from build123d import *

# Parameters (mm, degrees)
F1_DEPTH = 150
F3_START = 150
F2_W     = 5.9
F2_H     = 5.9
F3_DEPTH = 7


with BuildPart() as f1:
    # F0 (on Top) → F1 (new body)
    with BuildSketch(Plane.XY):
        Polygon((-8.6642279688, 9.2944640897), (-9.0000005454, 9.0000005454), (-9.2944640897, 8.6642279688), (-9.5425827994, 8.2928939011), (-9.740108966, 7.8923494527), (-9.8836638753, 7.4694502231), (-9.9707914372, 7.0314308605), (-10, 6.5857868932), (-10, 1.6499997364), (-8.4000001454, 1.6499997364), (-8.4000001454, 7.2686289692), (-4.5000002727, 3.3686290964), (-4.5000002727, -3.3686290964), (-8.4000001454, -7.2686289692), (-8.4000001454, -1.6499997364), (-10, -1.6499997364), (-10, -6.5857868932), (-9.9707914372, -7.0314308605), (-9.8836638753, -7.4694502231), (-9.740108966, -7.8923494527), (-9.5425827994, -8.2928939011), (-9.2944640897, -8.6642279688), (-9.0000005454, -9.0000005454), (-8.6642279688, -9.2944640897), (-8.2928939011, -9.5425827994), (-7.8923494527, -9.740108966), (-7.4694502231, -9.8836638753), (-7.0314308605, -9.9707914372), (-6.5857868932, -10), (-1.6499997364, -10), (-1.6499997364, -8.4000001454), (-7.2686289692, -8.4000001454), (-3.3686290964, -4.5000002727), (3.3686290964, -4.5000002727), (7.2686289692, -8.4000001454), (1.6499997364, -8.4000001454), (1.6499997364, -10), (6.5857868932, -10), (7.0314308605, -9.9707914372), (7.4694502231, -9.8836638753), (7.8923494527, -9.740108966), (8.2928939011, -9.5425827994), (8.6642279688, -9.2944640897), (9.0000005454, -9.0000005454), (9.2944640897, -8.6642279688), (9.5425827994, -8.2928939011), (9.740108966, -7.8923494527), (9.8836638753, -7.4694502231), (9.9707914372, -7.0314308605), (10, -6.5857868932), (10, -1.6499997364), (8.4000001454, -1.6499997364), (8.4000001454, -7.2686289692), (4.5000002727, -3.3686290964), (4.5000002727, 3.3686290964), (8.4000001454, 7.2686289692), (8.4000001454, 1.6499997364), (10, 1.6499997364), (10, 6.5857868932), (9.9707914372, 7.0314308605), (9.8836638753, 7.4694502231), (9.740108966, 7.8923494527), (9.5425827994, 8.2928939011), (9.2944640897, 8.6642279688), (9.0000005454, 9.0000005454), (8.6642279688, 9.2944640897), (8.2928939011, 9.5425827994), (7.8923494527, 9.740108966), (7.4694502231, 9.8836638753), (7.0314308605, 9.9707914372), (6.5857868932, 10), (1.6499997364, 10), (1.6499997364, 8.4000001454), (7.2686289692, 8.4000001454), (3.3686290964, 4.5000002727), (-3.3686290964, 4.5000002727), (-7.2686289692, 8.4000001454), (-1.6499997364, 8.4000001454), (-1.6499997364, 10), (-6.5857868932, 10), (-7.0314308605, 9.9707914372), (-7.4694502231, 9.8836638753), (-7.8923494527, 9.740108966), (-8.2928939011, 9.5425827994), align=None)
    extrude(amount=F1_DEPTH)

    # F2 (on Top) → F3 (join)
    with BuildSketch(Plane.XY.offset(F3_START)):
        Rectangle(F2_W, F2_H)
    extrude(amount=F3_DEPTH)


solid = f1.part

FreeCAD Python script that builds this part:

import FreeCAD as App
import Part
import Sketcher
from FreeCAD import Vector
Q = App.Units.Quantity


def add_polygon(sketch, points):
    """Adds a closed chain of lines whose ends are joined by coincident constraints."""
    first, n = sketch.GeometryCount, len(points)
    for a, b in zip(points, points[1:] + points[:1]):
        sketch.addGeometry(Part.LineSegment(App.Vector(*a, 0), App.Vector(*b, 0)), False)
    for i in range(n):
        sketch.addConstraint(Sketcher.Constraint("Coincident", first + i, 2, first + (i + 1) % n, 1))

doc = App.newDocument("Part")
body = doc.addObject("PartDesign::Body", "Body")

# Sketch on XY plane
sketch1 = doc.addObject("Sketcher::SketchObject", "Sketch")
body.addObject(sketch1)
sketch1.AttachmentSupport = (doc.XY_Plane, [""])
sketch1.MapMode = "FlatFace"
add_polygon(sketch1, [(-8.664228, 9.294464), (-9.000001, 9.000001), (-9.294464, 8.664228), (-9.542583, 8.292894), (-9.740109, 7.892349), (-9.883664, 7.46945), (-9.970791, 7.031431), (-10, 6.585787), (-10, 1.65), (-8.4, 1.65), (-8.4, 7.268629), (-4.5, 3.368629), (-4.5, -3.368629), (-8.4, -7.268629), (-8.4, -1.65), (-10, -1.65), (-10, -6.585787), (-9.970791, -7.031431), (-9.883664, -7.46945), (-9.740109, -7.892349), (-9.542583, -8.292894), (-9.294464, -8.664228), (-9.000001, -9.000001), (-8.664228, -9.294464), (-8.292894, -9.542583), (-7.892349, -9.740109), (-7.46945, -9.883664), (-7.031431, -9.970791), (-6.585787, -10), (-1.65, -10), (-1.65, -8.4), (-7.268629, -8.4), (-3.368629, -4.5), (3.368629, -4.5), (7.268629, -8.4), (1.65, -8.4), (1.65, -10), (6.585787, -10), (7.031431, -9.970791), (7.46945, -9.883664), (7.892349, -9.740109), (8.292894, -9.542583), (8.664228, -9.294464), (9.000001, -9.000001), (9.294464, -8.664228), (9.542583, -8.292894), (9.740109, -7.892349), (9.883664, -7.46945), (9.970791, -7.031431), (10, -6.585787), (10, -1.65), (8.4, -1.65), (8.4, -7.268629), (4.5, -3.368629), (4.5, 3.368629), (8.4, 7.268629), (8.4, 1.65), (10, 1.65), (10, 6.585787), (9.970791, 7.031431), (9.883664, 7.46945), (9.740109, 7.892349), (9.542583, 8.292894), (9.294464, 8.664228), (9.000001, 9.000001), (8.664228, 9.294464), (8.292894, 9.542583), (7.892349, 9.740109), (7.46945, 9.883664), (7.031431, 9.970791), (6.585787, 10), (1.65, 10), (1.65, 8.4), (7.268629, 8.4), (3.368629, 4.5), (-3.368629, 4.5), (-7.268629, 8.4), (-1.65, 8.4), (-1.65, 10), (-6.585787, 10), (-7.031431, 9.970791), (-7.46945, 9.883664), (-7.892349, 9.740109), (-8.292894, 9.542583)])  # lines 0-83
sketch1.addConstraint(Sketcher.Constraint("Vertical", 7))
sketch1.addConstraint(Sketcher.Constraint("Horizontal", 8))
sketch1.addConstraint(Sketcher.Constraint("Vertical", 9))
sketch1.addConstraint(Sketcher.Constraint("Vertical", 11))
sketch1.addConstraint(Sketcher.Constraint("Vertical", 13))
sketch1.addConstraint(Sketcher.Constraint("Horizontal", 14))
sketch1.addConstraint(Sketcher.Constraint("Vertical", 15))
sketch1.addConstraint(Sketcher.Constraint("Horizontal", 28))
sketch1.addConstraint(Sketcher.Constraint("Vertical", 29))
sketch1.addConstraint(Sketcher.Constraint("Horizontal", 30))
sketch1.addConstraint(Sketcher.Constraint("Horizontal", 32))
sketch1.addConstraint(Sketcher.Constraint("Horizontal", 34))
sketch1.addConstraint(Sketcher.Constraint("Vertical", 35))
sketch1.addConstraint(Sketcher.Constraint("Horizontal", 36))
sketch1.addConstraint(Sketcher.Constraint("Vertical", 49))
sketch1.addConstraint(Sketcher.Constraint("Horizontal", 50))
sketch1.addConstraint(Sketcher.Constraint("Vertical", 51))
sketch1.addConstraint(Sketcher.Constraint("Vertical", 53))
sketch1.addConstraint(Sketcher.Constraint("Vertical", 55))
sketch1.addConstraint(Sketcher.Constraint("Horizontal", 56))
sketch1.addConstraint(Sketcher.Constraint("Vertical", 57))
sketch1.addConstraint(Sketcher.Constraint("Horizontal", 70))
sketch1.addConstraint(Sketcher.Constraint("Vertical", 71))
sketch1.addConstraint(Sketcher.Constraint("Horizontal", 72))
sketch1.addConstraint(Sketcher.Constraint("Horizontal", 74))
sketch1.addConstraint(Sketcher.Constraint("Horizontal", 76))
sketch1.addConstraint(Sketcher.Constraint("Vertical", 77))
sketch1.addConstraint(Sketcher.Constraint("Horizontal", 78))
sketch1.addConstraint(Sketcher.Constraint("DistanceX", 8, 1, 8, 2, Q("1.6 mm")))
sketch1.addConstraint(Sketcher.Constraint("DistanceX", 14, 2, 14, 1, Q("1.6 mm")))
sketch1.addConstraint(Sketcher.Constraint("DistanceX", 50, 2, 50, 1, Q("1.6 mm")))
sketch1.addConstraint(Sketcher.Constraint("DistanceX", 56, 1, 56, 2, Q("1.6 mm")))
sketch1.addConstraint(Sketcher.Constraint("DistanceY", 29, 1, 29, 2, Q("1.6 mm")))
sketch1.addConstraint(Sketcher.Constraint("DistanceY", 35, 2, 35, 1, Q("1.6 mm")))
sketch1.addConstraint(Sketcher.Constraint("DistanceY", 71, 2, 71, 1, Q("1.6 mm")))
sketch1.addConstraint(Sketcher.Constraint("DistanceY", 77, 1, 77, 2, Q("1.6 mm")))
sketch1.addConstraint(Sketcher.Constraint("DistanceX", 0, 2, -1, 1, Q("9.000001 mm")))
sketch1.addConstraint(Sketcher.Constraint("DistanceY", -1, 1, 0, 2, Q("9.000001 mm")))
sketch1.addConstraint(Sketcher.Constraint("DistanceX", 6, 2, -1, 1, Q("10 mm")))
sketch1.addConstraint(Sketcher.Constraint("DistanceX", 14, 2, -1, 1, Q("10 mm")))
sketch1.addConstraint(Sketcher.Constraint("DistanceX", 21, 2, -1, 1, Q("9.000001 mm")))
sketch1.addConstraint(Sketcher.Constraint("DistanceY", 21, 2, -1, 1, Q("9.000001 mm")))
sketch1.addConstraint(Sketcher.Constraint("DistanceY", 27, 2, -1, 1, Q("10 mm")))
sketch1.addConstraint(Sketcher.Constraint("DistanceY", 35, 2, -1, 1, Q("10 mm")))
sketch1.addConstraint(Sketcher.Constraint("DistanceX", -1, 1, 42, 2, Q("9.000001 mm")))
sketch1.addConstraint(Sketcher.Constraint("DistanceY", 42, 2, -1, 1, Q("9.000001 mm")))
sketch1.addConstraint(Sketcher.Constraint("DistanceX", -1, 1, 48, 2, Q("10 mm")))
sketch1.addConstraint(Sketcher.Constraint("DistanceX", -1, 1, 56, 2, Q("10 mm")))
sketch1.addConstraint(Sketcher.Constraint("DistanceX", -1, 1, 63, 2, Q("9.000001 mm")))
sketch1.addConstraint(Sketcher.Constraint("DistanceY", -1, 1, 63, 2, Q("9.000001 mm")))
sketch1.addConstraint(Sketcher.Constraint("DistanceY", -1, 1, 69, 2, Q("10 mm")))
sketch1.addConstraint(Sketcher.Constraint("DistanceY", -1, 1, 77, 2, Q("10 mm")))
sketch1.addConstraint(Sketcher.Constraint("DistanceX", 10, 2, -1, 1, Q("4.5 mm")))
sketch1.addConstraint(Sketcher.Constraint("DistanceY", 31, 2, -1, 1, Q("4.5 mm")))
sketch1.addConstraint(Sketcher.Constraint("DistanceX", -1, 1, 52, 2, Q("4.5 mm")))
sketch1.addConstraint(Sketcher.Constraint("DistanceY", -1, 1, 73, 2, Q("4.5 mm")))
sketch1.addConstraint(Sketcher.Constraint("DistanceY", -1, 1, 7, 2, Q("1.65 mm")))
sketch1.addConstraint(Sketcher.Constraint("DistanceY", 13, 2, -1, 1, Q("1.65 mm")))
sketch1.addConstraint(Sketcher.Constraint("DistanceX", 28, 2, -1, 1, Q("1.65 mm")))
sketch1.addConstraint(Sketcher.Constraint("DistanceX", -1, 1, 34, 2, Q("1.65 mm")))
sketch1.addConstraint(Sketcher.Constraint("DistanceY", 49, 2, -1, 1, Q("1.65 mm")))
sketch1.addConstraint(Sketcher.Constraint("DistanceY", -1, 1, 55, 2, Q("1.65 mm")))
sketch1.addConstraint(Sketcher.Constraint("DistanceX", -1, 1, 70, 2, Q("1.65 mm")))
sketch1.addConstraint(Sketcher.Constraint("DistanceX", 76, 2, -1, 1, Q("1.65 mm")))
sketch1.addConstraint(Sketcher.Constraint("Distance", 0, Q("0.4466 mm")))
sketch1.addConstraint(Sketcher.Constraint("Distance", 1, Q("0.4466 mm")))
sketch1.addConstraint(Sketcher.Constraint("Distance", 2, Q("0.4466 mm")))
sketch1.addConstraint(Sketcher.Constraint("Distance", 3, Q("0.446601 mm")))
sketch1.addConstraint(Sketcher.Constraint("Distance", 4, Q("0.4466 mm")))
sketch1.addConstraint(Sketcher.Constraint("Distance", 5, Q("0.446601 mm")))
sketch1.addConstraint(Sketcher.Constraint("Distance", 6, Q("0.4466 mm")))
sketch1.addConstraint(Sketcher.Constraint("Distance", 16, Q("0.4466 mm")))
sketch1.addConstraint(Sketcher.Constraint("Distance", 17, Q("0.446601 mm")))
sketch1.addConstraint(Sketcher.Constraint("Distance", 18, Q("0.4466 mm")))
sketch1.addConstraint(Sketcher.Constraint("Distance", 19, Q("0.446601 mm")))
sketch1.addConstraint(Sketcher.Constraint("Distance", 20, Q("0.4466 mm")))
sketch1.addConstraint(Sketcher.Constraint("Distance", 21, Q("0.4466 mm")))
sketch1.addConstraint(Sketcher.Constraint("Distance", 22, Q("0.4466 mm")))
sketch1.addConstraint(Sketcher.Constraint("Distance", 23, Q("0.4466 mm")))
sketch1.addConstraint(Sketcher.Constraint("Distance", 24, Q("0.446601 mm")))
sketch1.addConstraint(Sketcher.Constraint("Distance", 25, Q("0.4466 mm")))
sketch1.addConstraint(Sketcher.Constraint("Distance", 26, Q("0.446601 mm")))
sketch1.addConstraint(Sketcher.Constraint("Distance", 27, Q("0.4466 mm")))
sketch1.addConstraint(Sketcher.Constraint("Distance", 37, Q("0.4466 mm")))
sketch1.addConstraint(Sketcher.Constraint("Distance", 38, Q("0.446601 mm")))
sketch1.addConstraint(Sketcher.Constraint("Distance", 39, Q("0.4466 mm")))
sketch1.addConstraint(Sketcher.Constraint("Distance", 40, Q("0.446601 mm")))
sketch1.addConstraint(Sketcher.Constraint("Distance", 41, Q("0.4466 mm")))
sketch1.addConstraint(Sketcher.Constraint("Distance", 42, Q("0.4466 mm")))
sketch1.addConstraint(Sketcher.Constraint("Distance", 43, Q("0.4466 mm")))
sketch1.addConstraint(Sketcher.Constraint("Distance", 44, Q("0.4466 mm")))
sketch1.addConstraint(Sketcher.Constraint("Distance", 45, Q("0.446601 mm")))
sketch1.addConstraint(Sketcher.Constraint("Distance", 46, Q("0.4466 mm")))
sketch1.addConstraint(Sketcher.Constraint("Distance", 47, Q("0.446601 mm")))
sketch1.addConstraint(Sketcher.Constraint("Distance", 48, Q("0.4466 mm")))
sketch1.addConstraint(Sketcher.Constraint("Distance", 58, Q("0.4466 mm")))
sketch1.addConstraint(Sketcher.Constraint("Distance", 59, Q("0.446601 mm")))
sketch1.addConstraint(Sketcher.Constraint("Distance", 60, Q("0.4466 mm")))
sketch1.addConstraint(Sketcher.Constraint("Distance", 61, Q("0.446601 mm")))
sketch1.addConstraint(Sketcher.Constraint("Distance", 62, Q("0.4466 mm")))
sketch1.addConstraint(Sketcher.Constraint("Distance", 63, Q("0.4466 mm")))
sketch1.addConstraint(Sketcher.Constraint("Distance", 64, Q("0.4466 mm")))
sketch1.addConstraint(Sketcher.Constraint("Distance", 65, Q("0.4466 mm")))
sketch1.addConstraint(Sketcher.Constraint("Distance", 66, Q("0.446601 mm")))
sketch1.addConstraint(Sketcher.Constraint("Distance", 67, Q("0.4466 mm")))
sketch1.addConstraint(Sketcher.Constraint("Distance", 68, Q("0.446601 mm")))
sketch1.addConstraint(Sketcher.Constraint("Distance", 69, Q("0.4466 mm")))
sketch1.addConstraint(Sketcher.Constraint("Distance", 79, Q("0.4466 mm")))
sketch1.addConstraint(Sketcher.Constraint("Distance", 80, Q("0.446601 mm")))
sketch1.addConstraint(Sketcher.Constraint("Distance", 81, Q("0.4466 mm")))
sketch1.addConstraint(Sketcher.Constraint("Distance", 82, Q("0.446601 mm")))
sketch1.addConstraint(Sketcher.Constraint("Distance", 83, Q("0.4466 mm")))
sketch1.addConstraint(Sketcher.Constraint("DistanceX", 30, 2, 30, 1, Q("5.618629 mm")))
sketch1.addConstraint(Sketcher.Constraint("DistanceX", 32, 1, 32, 2, Q("6.737258 mm")))
sketch1.addConstraint(Sketcher.Constraint("DistanceX", 34, 2, 34, 1, Q("5.618629 mm")))
sketch1.addConstraint(Sketcher.Constraint("DistanceX", 72, 1, 72, 2, Q("5.618629 mm")))
sketch1.addConstraint(Sketcher.Constraint("DistanceX", 74, 2, 74, 1, Q("6.737258 mm")))
sketch1.addConstraint(Sketcher.Constraint("DistanceX", 76, 1, 76, 2, Q("5.618629 mm")))
sketch1.addConstraint(Sketcher.Constraint("DistanceY", 9, 1, 9, 2, Q("5.618629 mm")))
sketch1.addConstraint(Sketcher.Constraint("DistanceY", 11, 2, 11, 1, Q("6.737258 mm")))
sketch1.addConstraint(Sketcher.Constraint("DistanceY", 13, 1, 13, 2, Q("5.618629 mm")))
sketch1.addConstraint(Sketcher.Constraint("DistanceY", 51, 2, 51, 1, Q("5.618629 mm")))
sketch1.addConstraint(Sketcher.Constraint("DistanceY", 53, 1, 53, 2, Q("6.737258 mm")))
sketch1.addConstraint(Sketcher.Constraint("DistanceY", 55, 2, 55, 1, Q("5.618629 mm")))
sketch1.addConstraint(Sketcher.Constraint("DistanceX", 28, 1, 28, 2, Q("4.935787 mm")))
sketch1.addConstraint(Sketcher.Constraint("DistanceX", 36, 1, 36, 2, Q("4.935787 mm")))
sketch1.addConstraint(Sketcher.Constraint("DistanceX", 70, 2, 70, 1, Q("4.935787 mm")))
sketch1.addConstraint(Sketcher.Constraint("DistanceX", 78, 2, 78, 1, Q("4.935787 mm")))
sketch1.addConstraint(Sketcher.Constraint("DistanceY", 7, 2, 7, 1, Q("4.935787 mm")))
sketch1.addConstraint(Sketcher.Constraint("DistanceY", 15, 2, 15, 1, Q("4.935787 mm")))
sketch1.addConstraint(Sketcher.Constraint("DistanceY", 49, 1, 49, 2, Q("4.935787 mm")))
sketch1.addConstraint(Sketcher.Constraint("DistanceY", 57, 1, 57, 2, Q("4.935787 mm")))
sketch1.addConstraint(Sketcher.Constraint("DistanceX", 3, 2, -1, 1, Q("9.740109 mm")))
sketch1.addConstraint(Sketcher.Constraint("DistanceY", -1, 1, 3, 2, Q("7.892349 mm")))
sketch1.addConstraint(Sketcher.Constraint("DistanceY", -1, 1, 4, 2, Q("7.46945 mm")))
sketch1.addConstraint(Sketcher.Constraint("DistanceY", -1, 1, 10, 2, Q("3.368629 mm")))
sketch1.addConstraint(Sketcher.Constraint("DistanceX", 16, 2, -1, 1, Q("9.970791 mm")))
sketch1.addConstraint(Sketcher.Constraint("DistanceY", 17, 2, -1, 1, Q("7.46945 mm")))
sketch1.addConstraint(Sketcher.Constraint("DistanceX", 18, 2, -1, 1, Q("9.740109 mm")))
sketch1.addConstraint(Sketcher.Constraint("DistanceX", 24, 2, -1, 1, Q("7.892349 mm")))
sketch1.addConstraint(Sketcher.Constraint("DistanceY", 24, 2, -1, 1, Q("9.740109 mm")))
sketch1.addConstraint(Sketcher.Constraint("DistanceX", 25, 2, -1, 1, Q("7.46945 mm")))
sketch1.addConstraint(Sketcher.Constraint("DistanceX", 31, 2, -1, 1, Q("3.368629 mm")))
sketch1.addConstraint(Sketcher.Constraint("DistanceX", -1, 1, 37, 2, Q("7.031431 mm")))
sketch1.addConstraint(Sketcher.Constraint("DistanceX", -1, 1, 38, 2, Q("7.46945 mm")))
sketch1.addConstraint(Sketcher.Constraint("DistanceX", -1, 1, 39, 2, Q("7.892349 mm")))
sketch1.addConstraint(Sketcher.Constraint("DistanceX", -1, 1, 45, 2, Q("9.740109 mm")))
sketch1.addConstraint(Sketcher.Constraint("DistanceY", 45, 2, -1, 1, Q("7.892349 mm")))
sketch1.addConstraint(Sketcher.Constraint("DistanceY", 46, 2, -1, 1, Q("7.46945 mm")))
sketch1.addConstraint(Sketcher.Constraint("DistanceY", 52, 2, -1, 1, Q("3.368629 mm")))
sketch1.addConstraint(Sketcher.Constraint("DistanceX", -1, 1, 58, 2, Q("9.970791 mm")))
sketch1.addConstraint(Sketcher.Constraint("DistanceY", -1, 1, 59, 2, Q("7.46945 mm")))
sketch1.addConstraint(Sketcher.Constraint("DistanceX", -1, 1, 60, 2, Q("9.740109 mm")))
sketch1.addConstraint(Sketcher.Constraint("DistanceX", -1, 1, 66, 2, Q("7.892349 mm")))
sketch1.addConstraint(Sketcher.Constraint("DistanceY", -1, 1, 66, 2, Q("9.740109 mm")))
sketch1.addConstraint(Sketcher.Constraint("DistanceX", -1, 1, 67, 2, Q("7.46945 mm")))
sketch1.addConstraint(Sketcher.Constraint("DistanceX", -1, 1, 73, 2, Q("3.368629 mm")))
sketch1.addConstraint(Sketcher.Constraint("DistanceX", 79, 2, -1, 1, Q("7.031431 mm")))
sketch1.addConstraint(Sketcher.Constraint("DistanceX", 80, 2, -1, 1, Q("7.46945 mm")))
sketch1.addConstraint(Sketcher.Constraint("DistanceX", 81, 2, -1, 1, Q("7.892349 mm")))
sketch1.addConstraint(Sketcher.Constraint("DistanceX", 1, 2, -1, 1, Q("9.294464 mm")))
sketch1.addConstraint(Sketcher.Constraint("DistanceX", 19, 2, -1, 1, Q("9.542583 mm")))
sketch1.addConstraint(Sketcher.Constraint("DistanceX", 22, 2, -1, 1, Q("8.664228 mm")))
sketch1.addConstraint(Sketcher.Constraint("DistanceX", -1, 1, 40, 2, Q("8.292894 mm")))
sketch1.addConstraint(Sketcher.Constraint("DistanceX", -1, 1, 43, 2, Q("9.294464 mm")))
sketch1.addConstraint(Sketcher.Constraint("DistanceX", -1, 1, 61, 2, Q("9.542583 mm")))
sketch1.addConstraint(Sketcher.Constraint("DistanceX", -1, 1, 64, 2, Q("8.664228 mm")))
sketch1.addConstraint(Sketcher.Constraint("DistanceX", 82, 2, -1, 1, Q("8.292894 mm")))
pad1 = doc.addObject("PartDesign::Pad", "Pad")
body.addObject(pad1)
pad1.Profile = sketch1
pad1.Length = 150

# Sketch on XY plane
sketch2 = doc.addObject("Sketcher::SketchObject", "Sketch001")
body.addObject(sketch2)
sketch2.AttachmentSupport = (doc.XY_Plane, [""])
sketch2.MapMode = "FlatFace"
sketch2.AttachmentOffset = App.Placement(Vector(0, 0, 150), App.Rotation())
add_polygon(sketch2, [(-3, 3), (-3, -3), (3, -3), (3, 3)])  # lines 0-3
sketch2.addConstraint(Sketcher.Constraint("Vertical", 0))
sketch2.addConstraint(Sketcher.Constraint("Horizontal", 1))
sketch2.addConstraint(Sketcher.Constraint("Vertical", 2))
sketch2.addConstraint(Sketcher.Constraint("Horizontal", 3))
sketch2.addConstraint(Sketcher.Constraint("Symmetric", 0, 2, 2, 2, -1, 1))
sketch2.addConstraint(Sketcher.Constraint("Equal", 3, 0))
sketch2.addConstraint(Sketcher.Constraint("DistanceX", 1, 1, 1, 2, Q("5.9 mm")))
pad2 = doc.addObject("PartDesign::Pad", "Pad001")
body.addObject(pad2)
pad2.Profile = sketch2
pad2.Length = 7

doc.recompute()
